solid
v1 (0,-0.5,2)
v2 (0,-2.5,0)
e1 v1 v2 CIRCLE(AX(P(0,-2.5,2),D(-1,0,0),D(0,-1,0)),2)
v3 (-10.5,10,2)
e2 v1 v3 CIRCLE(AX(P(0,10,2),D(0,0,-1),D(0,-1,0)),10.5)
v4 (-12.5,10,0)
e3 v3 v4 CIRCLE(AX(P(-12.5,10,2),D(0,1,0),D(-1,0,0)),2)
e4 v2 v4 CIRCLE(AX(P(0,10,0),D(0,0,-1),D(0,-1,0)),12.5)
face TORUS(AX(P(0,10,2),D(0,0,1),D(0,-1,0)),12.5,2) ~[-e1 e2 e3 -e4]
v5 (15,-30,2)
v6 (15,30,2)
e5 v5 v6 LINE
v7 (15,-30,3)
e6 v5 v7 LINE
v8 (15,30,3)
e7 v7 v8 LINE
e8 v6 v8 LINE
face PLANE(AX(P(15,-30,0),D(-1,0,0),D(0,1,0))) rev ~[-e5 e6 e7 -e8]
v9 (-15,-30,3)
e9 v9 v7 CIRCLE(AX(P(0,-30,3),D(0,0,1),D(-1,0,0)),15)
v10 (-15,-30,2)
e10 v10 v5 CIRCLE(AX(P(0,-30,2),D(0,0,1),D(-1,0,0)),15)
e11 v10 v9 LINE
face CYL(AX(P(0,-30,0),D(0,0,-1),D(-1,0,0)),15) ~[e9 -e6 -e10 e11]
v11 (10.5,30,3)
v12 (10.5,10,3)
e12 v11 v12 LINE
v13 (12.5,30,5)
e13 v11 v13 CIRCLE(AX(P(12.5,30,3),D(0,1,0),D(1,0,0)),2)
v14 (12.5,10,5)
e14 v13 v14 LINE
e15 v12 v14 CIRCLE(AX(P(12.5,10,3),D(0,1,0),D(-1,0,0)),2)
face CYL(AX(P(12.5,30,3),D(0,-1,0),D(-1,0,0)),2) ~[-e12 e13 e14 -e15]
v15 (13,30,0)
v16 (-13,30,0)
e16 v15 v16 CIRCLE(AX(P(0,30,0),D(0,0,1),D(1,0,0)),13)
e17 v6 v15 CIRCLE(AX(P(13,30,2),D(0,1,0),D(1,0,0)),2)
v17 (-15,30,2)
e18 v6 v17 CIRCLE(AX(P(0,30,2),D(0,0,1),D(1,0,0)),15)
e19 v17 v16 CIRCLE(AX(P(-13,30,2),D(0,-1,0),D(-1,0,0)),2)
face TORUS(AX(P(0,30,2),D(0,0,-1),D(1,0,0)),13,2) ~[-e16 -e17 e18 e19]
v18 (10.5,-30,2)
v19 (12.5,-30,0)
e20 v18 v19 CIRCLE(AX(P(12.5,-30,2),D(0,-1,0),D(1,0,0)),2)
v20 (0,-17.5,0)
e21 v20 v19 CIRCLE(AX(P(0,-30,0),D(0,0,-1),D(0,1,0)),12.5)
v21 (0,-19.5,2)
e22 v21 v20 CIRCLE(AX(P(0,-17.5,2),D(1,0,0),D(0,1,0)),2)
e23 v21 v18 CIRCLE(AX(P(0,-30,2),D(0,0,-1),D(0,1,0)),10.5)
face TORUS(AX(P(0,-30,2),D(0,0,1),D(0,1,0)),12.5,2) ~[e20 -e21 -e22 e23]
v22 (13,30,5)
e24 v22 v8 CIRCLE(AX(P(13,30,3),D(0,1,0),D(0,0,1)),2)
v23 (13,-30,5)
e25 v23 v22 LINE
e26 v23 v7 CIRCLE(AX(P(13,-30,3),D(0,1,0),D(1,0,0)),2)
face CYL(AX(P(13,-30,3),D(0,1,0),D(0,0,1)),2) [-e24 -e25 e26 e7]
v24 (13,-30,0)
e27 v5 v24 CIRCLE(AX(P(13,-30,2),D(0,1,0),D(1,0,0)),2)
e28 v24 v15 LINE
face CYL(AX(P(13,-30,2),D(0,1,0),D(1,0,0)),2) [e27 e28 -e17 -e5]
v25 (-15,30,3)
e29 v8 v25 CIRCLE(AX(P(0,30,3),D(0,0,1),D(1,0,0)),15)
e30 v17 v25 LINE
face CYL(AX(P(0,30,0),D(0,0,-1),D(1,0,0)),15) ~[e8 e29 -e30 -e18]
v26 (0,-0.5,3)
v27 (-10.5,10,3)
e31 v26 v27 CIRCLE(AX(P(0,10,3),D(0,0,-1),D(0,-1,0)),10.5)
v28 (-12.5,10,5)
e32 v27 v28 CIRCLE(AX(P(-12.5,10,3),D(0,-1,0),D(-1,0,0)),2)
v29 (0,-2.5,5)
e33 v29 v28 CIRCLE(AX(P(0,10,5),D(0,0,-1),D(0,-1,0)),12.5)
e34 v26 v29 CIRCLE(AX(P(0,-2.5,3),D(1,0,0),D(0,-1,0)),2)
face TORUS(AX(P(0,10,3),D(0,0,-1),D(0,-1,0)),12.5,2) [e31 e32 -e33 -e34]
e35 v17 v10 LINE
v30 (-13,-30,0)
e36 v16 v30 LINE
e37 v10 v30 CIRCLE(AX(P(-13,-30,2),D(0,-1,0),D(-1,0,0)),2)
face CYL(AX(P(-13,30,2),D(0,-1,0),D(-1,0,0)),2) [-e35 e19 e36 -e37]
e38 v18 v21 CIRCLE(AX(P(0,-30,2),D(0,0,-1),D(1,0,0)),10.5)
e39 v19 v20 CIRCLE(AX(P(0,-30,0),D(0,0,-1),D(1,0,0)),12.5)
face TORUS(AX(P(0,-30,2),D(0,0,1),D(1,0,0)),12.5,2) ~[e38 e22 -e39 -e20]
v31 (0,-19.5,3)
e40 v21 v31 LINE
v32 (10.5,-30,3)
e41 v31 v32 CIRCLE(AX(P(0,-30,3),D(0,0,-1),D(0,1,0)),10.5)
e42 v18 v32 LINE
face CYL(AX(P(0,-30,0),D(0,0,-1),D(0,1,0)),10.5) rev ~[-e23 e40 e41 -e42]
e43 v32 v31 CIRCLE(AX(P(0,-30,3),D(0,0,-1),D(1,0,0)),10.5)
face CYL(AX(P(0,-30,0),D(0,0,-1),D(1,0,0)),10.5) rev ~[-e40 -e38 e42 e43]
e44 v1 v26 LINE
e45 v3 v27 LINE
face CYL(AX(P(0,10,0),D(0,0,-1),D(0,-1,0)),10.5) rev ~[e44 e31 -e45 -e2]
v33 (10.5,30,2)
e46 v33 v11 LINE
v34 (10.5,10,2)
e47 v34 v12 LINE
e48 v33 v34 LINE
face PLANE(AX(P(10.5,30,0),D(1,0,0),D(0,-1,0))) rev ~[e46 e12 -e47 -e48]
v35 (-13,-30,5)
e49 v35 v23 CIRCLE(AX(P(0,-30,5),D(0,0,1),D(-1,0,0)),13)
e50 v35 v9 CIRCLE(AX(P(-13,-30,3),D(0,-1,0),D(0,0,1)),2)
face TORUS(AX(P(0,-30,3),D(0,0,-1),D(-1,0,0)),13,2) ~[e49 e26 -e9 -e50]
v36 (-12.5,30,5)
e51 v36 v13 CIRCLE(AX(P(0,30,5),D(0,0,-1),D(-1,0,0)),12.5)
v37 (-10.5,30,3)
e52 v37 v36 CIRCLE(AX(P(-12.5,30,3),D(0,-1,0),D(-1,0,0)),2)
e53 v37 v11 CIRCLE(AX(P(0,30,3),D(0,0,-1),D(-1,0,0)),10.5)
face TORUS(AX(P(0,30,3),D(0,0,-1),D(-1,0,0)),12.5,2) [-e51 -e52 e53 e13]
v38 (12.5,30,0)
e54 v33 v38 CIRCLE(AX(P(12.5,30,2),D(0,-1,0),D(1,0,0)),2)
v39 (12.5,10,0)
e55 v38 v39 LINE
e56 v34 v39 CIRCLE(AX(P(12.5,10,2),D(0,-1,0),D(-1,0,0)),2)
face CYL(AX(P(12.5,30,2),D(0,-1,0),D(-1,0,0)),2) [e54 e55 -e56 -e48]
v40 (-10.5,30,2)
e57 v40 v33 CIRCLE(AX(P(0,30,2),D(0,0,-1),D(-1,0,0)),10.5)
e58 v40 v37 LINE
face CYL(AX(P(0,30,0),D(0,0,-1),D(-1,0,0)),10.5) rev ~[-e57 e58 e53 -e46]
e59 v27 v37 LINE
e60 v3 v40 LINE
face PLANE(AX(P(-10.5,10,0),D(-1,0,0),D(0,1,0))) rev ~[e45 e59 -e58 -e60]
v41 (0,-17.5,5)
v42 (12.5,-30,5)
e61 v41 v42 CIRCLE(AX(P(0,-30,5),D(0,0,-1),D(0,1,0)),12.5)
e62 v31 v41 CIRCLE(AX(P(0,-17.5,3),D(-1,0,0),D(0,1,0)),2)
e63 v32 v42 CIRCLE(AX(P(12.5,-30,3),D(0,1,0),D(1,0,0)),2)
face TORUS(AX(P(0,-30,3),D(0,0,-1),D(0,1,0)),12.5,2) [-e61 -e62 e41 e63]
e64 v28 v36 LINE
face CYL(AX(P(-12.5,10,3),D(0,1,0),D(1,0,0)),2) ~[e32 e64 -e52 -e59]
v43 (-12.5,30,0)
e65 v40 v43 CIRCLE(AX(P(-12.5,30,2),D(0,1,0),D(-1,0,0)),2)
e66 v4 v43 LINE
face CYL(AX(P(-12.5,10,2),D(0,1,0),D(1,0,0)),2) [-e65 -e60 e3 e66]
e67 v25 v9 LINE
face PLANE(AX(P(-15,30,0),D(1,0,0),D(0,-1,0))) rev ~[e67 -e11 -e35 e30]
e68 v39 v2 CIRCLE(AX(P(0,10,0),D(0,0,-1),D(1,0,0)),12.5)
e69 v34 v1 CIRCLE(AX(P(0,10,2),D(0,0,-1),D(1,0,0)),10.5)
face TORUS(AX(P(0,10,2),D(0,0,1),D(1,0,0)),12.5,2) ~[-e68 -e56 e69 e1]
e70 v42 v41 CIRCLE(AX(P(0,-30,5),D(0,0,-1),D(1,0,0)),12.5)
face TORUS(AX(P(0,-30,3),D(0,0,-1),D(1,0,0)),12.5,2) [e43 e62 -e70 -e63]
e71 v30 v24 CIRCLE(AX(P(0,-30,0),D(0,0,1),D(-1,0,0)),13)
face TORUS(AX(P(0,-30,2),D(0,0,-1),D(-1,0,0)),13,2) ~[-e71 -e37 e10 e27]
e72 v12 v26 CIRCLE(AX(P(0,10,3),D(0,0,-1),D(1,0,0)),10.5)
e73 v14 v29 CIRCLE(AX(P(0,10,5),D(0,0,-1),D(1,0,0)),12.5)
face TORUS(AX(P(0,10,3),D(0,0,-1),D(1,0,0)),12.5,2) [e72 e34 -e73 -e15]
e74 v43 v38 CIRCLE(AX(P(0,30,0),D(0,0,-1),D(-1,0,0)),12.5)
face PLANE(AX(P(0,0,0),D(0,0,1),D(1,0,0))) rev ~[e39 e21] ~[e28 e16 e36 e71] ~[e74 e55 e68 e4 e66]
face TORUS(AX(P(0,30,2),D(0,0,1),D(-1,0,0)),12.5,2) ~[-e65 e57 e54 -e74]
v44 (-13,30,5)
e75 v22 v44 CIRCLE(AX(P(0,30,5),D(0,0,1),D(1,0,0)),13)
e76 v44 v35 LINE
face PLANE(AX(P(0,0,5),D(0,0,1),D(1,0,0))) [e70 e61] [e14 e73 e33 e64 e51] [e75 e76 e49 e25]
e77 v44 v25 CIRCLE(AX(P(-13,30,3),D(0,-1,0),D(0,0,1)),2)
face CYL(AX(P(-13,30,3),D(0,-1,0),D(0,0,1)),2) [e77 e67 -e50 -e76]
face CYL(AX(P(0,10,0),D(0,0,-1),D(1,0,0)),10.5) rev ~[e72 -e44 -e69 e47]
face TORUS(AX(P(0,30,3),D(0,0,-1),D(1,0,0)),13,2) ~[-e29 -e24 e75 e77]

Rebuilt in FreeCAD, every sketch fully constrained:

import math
import FreeCAD as App
import Part
import Sketcher


def edges_at(feature, points):
    """Names of the edges that pass closest to the given points."""
    edges = feature.Shape.Edges
    near = lambda p: min(range(len(edges)), key=lambda i: edges[i].distToShape(Part.Vertex(*p))[0])
    return sorted({f"Edge{near(p) + 1}" for p in points})

doc = App.newDocument("Part")
body = doc.addObject("PartDesign::Body", "Body")

# Sketch on XY plane
sketch1 = body.newObject("Sketcher::SketchObject", "Sketch")
sketch1.AttachmentSupport = (doc.getObject("XY_Plane"), [""])
sketch1.MapMode = "FlatFace"
sketch1.addGeometry(Part.ArcOfCircle(Part.Circle(App.Vector(0, 30, 0), App.Vector(0, 0, 1), 15), math.radians(0), math.radians(180)), False)
sketch1.addGeometry(Part.LineSegment(App.Vector(-15, 30, 0), App.Vector(-15, -30, 0)), False)
sketch1.addGeometry(Part.ArcOfCircle(Part.Circle(App.Vector(0, -30, 0), App.Vector(0, 0, 1), 15), math.radians(180), math.radians(360)), False)
sketch1.addGeometry(Part.LineSegment(App.Vector(15, -30, 0), App.Vector(15, 30, 0)), False)
sketch1.addGeometry(Part.ArcOfCircle(Part.Circle(App.Vector(0, -30, 0), App.Vector(0, 0, 1), 10.5), math.radians(0), math.radians(90)), False)
sketch1.addGeometry(Part.ArcOfCircle(Part.Circle(App.Vector(0, -30, 0), App.Vector(0, 0, 1), 10.5), math.radians(90), math.radians(360)), False)
sketch1.addGeometry(Part.LineSegment(App.Vector(10.5, 30, 0), App.Vector(10.5, 10, 0)), False)
sketch1.addGeometry(Part.ArcOfCircle(Part.Circle(App.Vector(0, 10, 0), App.Vector(0, 0, 1), 10.5), math.radians(-90), math.radians(0)), False)
sketch1.addGeometry(Part.ArcOfCircle(Part.Circle(App.Vector(0, 10, 0), App.Vector(0, 0, 1), 10.5), math.radians(180), math.radians(270)), False)
sketch1.addGeometry(Part.LineSegment(App.Vector(-10.5, 10, 0), App.Vector(-10.5, 30, 0)), False)
sketch1.addGeometry(Part.ArcOfCircle(Part.Circle(App.Vector(0, 30, 0), App.Vector(0, 0, 1), 10.5), math.radians(0), math.radians(180)), False)
sketch1.addConstraint(Sketcher.Constraint("Tangent", 0, 2, 1, 1))
sketch1.addConstraint(Sketcher.Constraint("Tangent", 1, 2, 2, 1))
sketch1.addConstraint(Sketcher.Constraint("Tangent", 2, 2, 3, 1))
sketch1.addConstraint(Sketcher.Constraint("Tangent", 3, 2, 0, 1))
sketch1.addConstraint(Sketcher.Constraint("Tangent", 4, 1, 5, 2))
sketch1.addConstraint(Sketcher.Constraint("Coincident", 5, 1, 4, 2))
sketch1.addConstraint(Sketcher.Constraint("Tangent", 6, 2, 7, 2))
sketch1.addConstraint(Sketcher.Constraint("Tangent", 7, 1, 8, 2))
sketch1.addConstraint(Sketcher.Constraint("Tangent", 8, 1, 9, 1))
sketch1.addConstraint(Sketcher.Constraint("Tangent", 9, 2, 10, 2))
sketch1.addConstraint(Sketcher.Constraint("Tangent", 10, 1, 6, 1))
sketch1.addConstraint(Sketcher.Constraint("Vertical", 1))
sketch1.addConstraint(Sketcher.Constraint("Vertical", 3))
sketch1.addConstraint(Sketcher.Constraint("Vertical", 6))
sketch1.addConstraint(Sketcher.Constraint("Vertical", 9))
sketch1.addConstraint(Sketcher.Constraint("Coincident", 4, 3, 2, 3))
sketch1.addConstraint(Sketcher.Constraint("Coincident", 10, 3, 0, 3))
sketch1.addConstraint(Sketcher.Constraint("Equal", 5, 7))
sketch1.addConstraint(Sketcher.Constraint("Equal", 7, 8))
sketch1.addConstraint(Sketcher.Constraint("Symmetric", 0, 3, 2, 3, -1, 1))
sketch1.addConstraint(Sketcher.Constraint("PointOnObject", 5, 1, -2))
sketch1.addConstraint(Sketcher.Constraint("PointOnObject", 7, 1, -2))
sketch1.addConstraint(Sketcher.Constraint("Horizontal", 2, 2, 4, 1))
sketch1.addConstraint(Sketcher.Constraint("Radius", 0, 15.0))
sketch1.addConstraint(Sketcher.Constraint("Radius", 4, 10.5))
sketch1.addConstraint(Sketcher.Constraint("DistanceY", 1, 2, 1, 1, 60.0))
sketch1.addConstraint(Sketcher.Constraint("DistanceY", 6, 2, 6, 1, 20.0))
pad1 = body.newObject("PartDesign::Pad", "Pad")
pad1.Profile = sketch1
pad1.Length = 5
doc.recompute()

fillet = body.newObject("PartDesign::Fillet", "Fillet")
fillet.Base = (pad1, edges_at(pad1, [
    (0, 40.5, 5),
    (0, 40.5, 0),
    (15, 0, 0),
    (-7.425, -37.425, 5),
    (-7.425, -37.425, 0),
]))
fillet.Radius = 2
doc.recompute()

fillet2 = body.newObject("PartDesign::Fillet", "Fillet001")
fillet2.Base = (fillet, edges_at(fillet, [(-15, 0, 5)]))
fillet2.Radius = 2

doc.recompute()
